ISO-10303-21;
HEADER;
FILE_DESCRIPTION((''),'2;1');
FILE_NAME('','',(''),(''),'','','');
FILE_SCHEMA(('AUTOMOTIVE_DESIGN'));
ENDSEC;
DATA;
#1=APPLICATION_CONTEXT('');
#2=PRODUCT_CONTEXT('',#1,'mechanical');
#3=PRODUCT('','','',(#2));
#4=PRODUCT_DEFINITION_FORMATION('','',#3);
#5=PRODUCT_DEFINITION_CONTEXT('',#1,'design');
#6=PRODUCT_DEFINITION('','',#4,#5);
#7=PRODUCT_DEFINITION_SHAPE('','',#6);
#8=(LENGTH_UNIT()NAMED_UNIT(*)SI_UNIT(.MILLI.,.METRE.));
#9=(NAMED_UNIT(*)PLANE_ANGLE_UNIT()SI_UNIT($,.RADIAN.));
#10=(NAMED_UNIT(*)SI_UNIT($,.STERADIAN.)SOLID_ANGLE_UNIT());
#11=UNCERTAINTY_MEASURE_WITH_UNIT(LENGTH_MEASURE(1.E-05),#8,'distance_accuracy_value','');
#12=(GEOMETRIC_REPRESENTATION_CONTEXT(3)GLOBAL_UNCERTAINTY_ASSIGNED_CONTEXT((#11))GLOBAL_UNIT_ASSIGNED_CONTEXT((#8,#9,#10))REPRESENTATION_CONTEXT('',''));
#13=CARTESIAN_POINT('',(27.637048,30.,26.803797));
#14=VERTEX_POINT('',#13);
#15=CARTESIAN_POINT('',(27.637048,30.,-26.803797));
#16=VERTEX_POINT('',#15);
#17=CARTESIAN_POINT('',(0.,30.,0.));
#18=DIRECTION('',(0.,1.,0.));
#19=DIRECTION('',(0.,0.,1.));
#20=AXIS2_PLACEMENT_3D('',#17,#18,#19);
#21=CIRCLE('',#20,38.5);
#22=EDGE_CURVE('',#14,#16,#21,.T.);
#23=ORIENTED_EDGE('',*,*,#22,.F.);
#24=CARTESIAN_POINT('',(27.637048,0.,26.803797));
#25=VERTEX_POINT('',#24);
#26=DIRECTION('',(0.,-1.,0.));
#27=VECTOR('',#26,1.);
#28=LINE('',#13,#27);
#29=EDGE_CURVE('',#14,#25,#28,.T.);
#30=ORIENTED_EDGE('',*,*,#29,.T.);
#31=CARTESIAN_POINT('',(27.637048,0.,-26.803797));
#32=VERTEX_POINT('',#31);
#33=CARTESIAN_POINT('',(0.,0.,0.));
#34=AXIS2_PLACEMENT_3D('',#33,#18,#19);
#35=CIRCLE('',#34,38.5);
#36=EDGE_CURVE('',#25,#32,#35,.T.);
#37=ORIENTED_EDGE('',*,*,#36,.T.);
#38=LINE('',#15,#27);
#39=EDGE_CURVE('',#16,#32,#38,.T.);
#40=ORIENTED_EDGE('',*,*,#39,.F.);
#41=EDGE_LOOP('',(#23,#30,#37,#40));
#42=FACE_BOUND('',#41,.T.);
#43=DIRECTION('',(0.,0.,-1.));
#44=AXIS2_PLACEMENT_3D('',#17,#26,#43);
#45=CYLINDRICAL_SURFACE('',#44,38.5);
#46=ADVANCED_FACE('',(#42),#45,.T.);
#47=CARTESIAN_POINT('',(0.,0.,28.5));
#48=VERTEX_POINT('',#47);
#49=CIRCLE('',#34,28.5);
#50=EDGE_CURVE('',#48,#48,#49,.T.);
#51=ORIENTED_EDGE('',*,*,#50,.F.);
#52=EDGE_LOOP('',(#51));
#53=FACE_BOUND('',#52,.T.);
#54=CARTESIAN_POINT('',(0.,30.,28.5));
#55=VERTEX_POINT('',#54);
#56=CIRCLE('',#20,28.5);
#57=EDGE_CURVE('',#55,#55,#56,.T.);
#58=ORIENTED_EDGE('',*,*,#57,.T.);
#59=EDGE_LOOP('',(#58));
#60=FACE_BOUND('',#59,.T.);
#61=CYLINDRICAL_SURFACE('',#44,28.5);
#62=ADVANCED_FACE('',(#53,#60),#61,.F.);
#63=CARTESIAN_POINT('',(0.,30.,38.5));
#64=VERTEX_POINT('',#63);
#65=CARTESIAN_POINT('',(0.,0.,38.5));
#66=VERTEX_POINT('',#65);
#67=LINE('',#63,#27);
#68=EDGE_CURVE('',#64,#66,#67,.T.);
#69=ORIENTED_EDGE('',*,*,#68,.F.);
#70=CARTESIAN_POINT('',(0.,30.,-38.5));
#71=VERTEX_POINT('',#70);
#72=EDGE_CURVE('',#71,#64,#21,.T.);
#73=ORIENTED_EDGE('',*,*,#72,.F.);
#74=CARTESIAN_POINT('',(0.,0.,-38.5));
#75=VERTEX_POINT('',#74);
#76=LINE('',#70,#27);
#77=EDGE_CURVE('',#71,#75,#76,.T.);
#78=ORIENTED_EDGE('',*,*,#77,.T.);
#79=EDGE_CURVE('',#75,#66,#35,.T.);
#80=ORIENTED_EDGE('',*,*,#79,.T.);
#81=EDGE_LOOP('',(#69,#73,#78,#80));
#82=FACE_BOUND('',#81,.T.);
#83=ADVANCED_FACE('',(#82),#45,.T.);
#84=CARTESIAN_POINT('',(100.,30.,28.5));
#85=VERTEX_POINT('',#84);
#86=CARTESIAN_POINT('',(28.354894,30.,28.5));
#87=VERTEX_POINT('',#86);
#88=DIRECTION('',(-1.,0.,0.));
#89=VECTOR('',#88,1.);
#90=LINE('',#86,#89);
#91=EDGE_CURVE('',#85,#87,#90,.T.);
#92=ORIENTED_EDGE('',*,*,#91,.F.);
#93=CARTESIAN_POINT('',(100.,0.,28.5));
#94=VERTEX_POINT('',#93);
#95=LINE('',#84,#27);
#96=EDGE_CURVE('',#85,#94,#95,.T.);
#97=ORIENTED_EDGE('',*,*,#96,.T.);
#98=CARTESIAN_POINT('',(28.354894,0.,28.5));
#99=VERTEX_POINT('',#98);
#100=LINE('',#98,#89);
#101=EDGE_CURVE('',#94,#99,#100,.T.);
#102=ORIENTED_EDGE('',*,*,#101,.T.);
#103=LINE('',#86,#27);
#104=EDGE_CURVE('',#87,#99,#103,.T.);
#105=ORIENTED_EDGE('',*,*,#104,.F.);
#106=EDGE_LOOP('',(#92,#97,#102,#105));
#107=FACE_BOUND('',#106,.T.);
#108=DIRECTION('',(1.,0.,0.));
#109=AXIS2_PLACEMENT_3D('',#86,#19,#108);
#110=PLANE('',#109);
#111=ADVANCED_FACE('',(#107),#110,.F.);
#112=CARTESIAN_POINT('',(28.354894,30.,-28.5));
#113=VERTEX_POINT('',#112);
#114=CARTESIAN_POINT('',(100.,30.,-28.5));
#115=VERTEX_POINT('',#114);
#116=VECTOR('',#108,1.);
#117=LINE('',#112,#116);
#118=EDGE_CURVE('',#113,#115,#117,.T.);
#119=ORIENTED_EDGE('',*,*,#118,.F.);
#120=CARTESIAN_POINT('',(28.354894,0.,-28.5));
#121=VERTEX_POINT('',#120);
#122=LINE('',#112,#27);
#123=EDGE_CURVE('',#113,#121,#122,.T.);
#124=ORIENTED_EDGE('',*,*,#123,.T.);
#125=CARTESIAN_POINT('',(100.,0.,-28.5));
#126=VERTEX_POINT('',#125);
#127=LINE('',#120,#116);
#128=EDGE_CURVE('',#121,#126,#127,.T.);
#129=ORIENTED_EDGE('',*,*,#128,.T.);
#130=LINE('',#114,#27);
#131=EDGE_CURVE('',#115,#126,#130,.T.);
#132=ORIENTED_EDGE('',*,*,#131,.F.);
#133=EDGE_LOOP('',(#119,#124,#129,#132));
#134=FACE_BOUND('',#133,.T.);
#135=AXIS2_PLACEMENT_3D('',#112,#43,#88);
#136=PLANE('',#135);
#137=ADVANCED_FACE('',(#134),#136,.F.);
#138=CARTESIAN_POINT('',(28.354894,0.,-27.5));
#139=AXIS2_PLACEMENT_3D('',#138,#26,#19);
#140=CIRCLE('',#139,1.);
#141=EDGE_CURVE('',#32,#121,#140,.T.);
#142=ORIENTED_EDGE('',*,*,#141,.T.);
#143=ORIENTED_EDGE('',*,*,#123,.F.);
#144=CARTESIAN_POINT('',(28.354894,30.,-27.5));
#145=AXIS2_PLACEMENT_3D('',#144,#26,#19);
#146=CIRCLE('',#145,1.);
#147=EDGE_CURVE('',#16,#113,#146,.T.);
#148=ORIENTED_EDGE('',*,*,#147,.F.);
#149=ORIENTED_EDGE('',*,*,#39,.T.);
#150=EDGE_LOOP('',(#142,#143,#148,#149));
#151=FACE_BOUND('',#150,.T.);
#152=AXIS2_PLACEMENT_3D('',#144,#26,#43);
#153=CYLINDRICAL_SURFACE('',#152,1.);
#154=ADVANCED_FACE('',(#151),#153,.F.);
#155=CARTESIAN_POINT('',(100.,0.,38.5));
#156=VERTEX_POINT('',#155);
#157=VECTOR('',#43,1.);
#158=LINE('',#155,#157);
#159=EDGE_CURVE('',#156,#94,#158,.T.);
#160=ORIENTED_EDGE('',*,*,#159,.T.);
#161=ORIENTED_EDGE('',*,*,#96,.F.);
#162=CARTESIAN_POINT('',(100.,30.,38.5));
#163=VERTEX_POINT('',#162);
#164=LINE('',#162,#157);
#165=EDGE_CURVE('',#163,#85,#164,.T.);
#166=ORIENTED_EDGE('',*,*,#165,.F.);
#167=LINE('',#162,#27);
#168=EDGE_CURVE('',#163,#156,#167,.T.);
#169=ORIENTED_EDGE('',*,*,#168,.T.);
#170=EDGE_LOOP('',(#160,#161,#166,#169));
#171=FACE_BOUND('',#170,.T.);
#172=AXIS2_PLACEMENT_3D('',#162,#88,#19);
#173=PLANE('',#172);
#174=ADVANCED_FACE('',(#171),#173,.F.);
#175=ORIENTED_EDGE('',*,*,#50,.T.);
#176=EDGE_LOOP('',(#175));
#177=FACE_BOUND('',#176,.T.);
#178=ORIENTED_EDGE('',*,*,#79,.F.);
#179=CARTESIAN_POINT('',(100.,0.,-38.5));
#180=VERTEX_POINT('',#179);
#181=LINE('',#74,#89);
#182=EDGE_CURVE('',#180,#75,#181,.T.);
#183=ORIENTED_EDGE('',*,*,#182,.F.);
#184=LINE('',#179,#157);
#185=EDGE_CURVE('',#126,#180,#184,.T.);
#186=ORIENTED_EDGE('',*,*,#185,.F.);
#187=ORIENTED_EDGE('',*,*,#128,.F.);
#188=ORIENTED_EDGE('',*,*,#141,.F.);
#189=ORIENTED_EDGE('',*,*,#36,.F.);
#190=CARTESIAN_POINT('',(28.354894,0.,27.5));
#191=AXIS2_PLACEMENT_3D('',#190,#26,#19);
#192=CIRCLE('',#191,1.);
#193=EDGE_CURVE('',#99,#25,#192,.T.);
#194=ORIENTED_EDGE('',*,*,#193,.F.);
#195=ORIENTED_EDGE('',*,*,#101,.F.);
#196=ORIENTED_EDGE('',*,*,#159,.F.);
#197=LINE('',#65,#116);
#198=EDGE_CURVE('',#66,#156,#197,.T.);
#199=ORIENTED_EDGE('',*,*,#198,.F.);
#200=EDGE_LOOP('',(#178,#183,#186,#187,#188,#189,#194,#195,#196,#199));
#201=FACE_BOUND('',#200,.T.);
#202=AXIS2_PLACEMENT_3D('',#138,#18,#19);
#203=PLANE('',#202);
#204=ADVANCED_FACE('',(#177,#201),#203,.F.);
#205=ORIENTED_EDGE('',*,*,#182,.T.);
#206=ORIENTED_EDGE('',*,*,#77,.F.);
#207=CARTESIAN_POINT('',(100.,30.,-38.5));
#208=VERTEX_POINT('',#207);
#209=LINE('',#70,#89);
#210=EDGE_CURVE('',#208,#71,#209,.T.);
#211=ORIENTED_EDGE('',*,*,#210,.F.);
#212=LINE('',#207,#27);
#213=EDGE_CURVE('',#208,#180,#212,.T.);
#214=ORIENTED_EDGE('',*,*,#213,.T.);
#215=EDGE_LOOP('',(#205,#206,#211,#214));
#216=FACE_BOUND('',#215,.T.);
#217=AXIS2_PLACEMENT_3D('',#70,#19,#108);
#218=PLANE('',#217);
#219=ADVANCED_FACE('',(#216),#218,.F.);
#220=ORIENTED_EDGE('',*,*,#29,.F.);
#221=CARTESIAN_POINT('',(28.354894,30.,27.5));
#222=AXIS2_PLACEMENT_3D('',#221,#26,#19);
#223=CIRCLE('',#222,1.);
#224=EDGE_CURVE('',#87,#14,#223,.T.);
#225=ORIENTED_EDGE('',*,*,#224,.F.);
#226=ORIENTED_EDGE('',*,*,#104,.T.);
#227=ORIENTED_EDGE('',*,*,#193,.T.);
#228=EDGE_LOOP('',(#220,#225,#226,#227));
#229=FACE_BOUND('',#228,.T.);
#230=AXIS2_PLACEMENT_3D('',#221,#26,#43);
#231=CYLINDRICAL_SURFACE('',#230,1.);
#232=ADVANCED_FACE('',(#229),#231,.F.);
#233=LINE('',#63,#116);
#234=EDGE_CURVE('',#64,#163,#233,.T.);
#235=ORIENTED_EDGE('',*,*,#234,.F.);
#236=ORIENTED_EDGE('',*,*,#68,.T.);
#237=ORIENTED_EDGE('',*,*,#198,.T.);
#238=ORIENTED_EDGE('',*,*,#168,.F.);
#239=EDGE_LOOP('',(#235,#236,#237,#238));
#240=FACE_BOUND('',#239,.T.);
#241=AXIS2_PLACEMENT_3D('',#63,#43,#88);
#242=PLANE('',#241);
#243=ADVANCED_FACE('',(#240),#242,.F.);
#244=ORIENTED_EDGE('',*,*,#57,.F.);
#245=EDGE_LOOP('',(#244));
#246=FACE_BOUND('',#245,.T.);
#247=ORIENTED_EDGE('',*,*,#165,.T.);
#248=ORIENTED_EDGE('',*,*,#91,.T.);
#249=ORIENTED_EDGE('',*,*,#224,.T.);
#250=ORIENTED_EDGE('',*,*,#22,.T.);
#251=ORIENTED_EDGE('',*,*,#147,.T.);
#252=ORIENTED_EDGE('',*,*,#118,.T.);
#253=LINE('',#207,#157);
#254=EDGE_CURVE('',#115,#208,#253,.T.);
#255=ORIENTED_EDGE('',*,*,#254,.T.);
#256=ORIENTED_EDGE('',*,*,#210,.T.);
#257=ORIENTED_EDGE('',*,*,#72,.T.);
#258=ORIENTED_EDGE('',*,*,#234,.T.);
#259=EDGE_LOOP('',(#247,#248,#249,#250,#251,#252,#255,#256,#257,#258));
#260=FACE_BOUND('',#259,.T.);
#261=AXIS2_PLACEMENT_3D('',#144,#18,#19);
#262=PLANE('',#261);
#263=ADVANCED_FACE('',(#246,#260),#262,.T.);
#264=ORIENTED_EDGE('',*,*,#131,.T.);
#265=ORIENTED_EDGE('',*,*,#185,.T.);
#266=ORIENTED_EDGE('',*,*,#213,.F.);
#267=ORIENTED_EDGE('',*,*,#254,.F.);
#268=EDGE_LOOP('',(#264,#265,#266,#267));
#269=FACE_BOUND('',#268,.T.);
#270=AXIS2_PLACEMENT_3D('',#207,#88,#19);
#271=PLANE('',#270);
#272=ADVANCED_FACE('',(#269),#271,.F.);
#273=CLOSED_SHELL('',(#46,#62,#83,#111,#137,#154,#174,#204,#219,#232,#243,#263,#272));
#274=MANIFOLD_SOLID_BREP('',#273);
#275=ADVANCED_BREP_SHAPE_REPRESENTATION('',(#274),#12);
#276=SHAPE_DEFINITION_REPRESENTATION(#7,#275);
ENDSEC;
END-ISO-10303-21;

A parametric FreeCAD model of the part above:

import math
import FreeCAD as App
import Part
import Sketcher
from FreeCAD import Vector
Q = App.Units.Quantity

doc = App.newDocument("Part")
body = doc.addObject("PartDesign::Body", "Body")

# Sketch on XZ plane
sketch1 = body.newObject("Sketcher::SketchObject", "Sketch")
sketch1.AttachmentSupport = (doc.getObject("XZ_Plane"), [""])
sketch1.MapMode = "FlatFace"
sketch1.addGeometry([
    Part.LineSegment(Vector(100, 28.5, 0), Vector(28.4, 28.5, 0)),  # 0
    Part.ArcOfCircle(Part.Circle(Vector(28.4, 27.5, 0), Vector(0, 0, 1), 1), math.radians(90), math.radians(224)),  # 1
    Part.ArcOfCircle(Part.Circle(Vector(0, 0, 0), Vector(0, 0, 1), 38.5), math.radians(-44), math.radians(44)),  # 2
    Part.ArcOfCircle(Part.Circle(Vector(28.4, -27.5, 0), Vector(0, 0, 1), 1), math.radians(136), math.radians(270)),  # 3
    Part.LineSegment(Vector(28.4, -28.5, 0), Vector(100, -28.5, 0)),  # 4
    Part.LineSegment(Vector(100, -28.5, 0), Vector(100, -38.5, 0)),  # 5
    Part.LineSegment(Vector(100, -38.5, 0), Vector(0, -38.5, 0)),  # 6
    Part.ArcOfCircle(Part.Circle(Vector(0, 0, 0), Vector(0, 0, 1), 38.5), math.radians(90), math.radians(270)),  # 7
    Part.LineSegment(Vector(0, 38.5, 0), Vector(100, 38.5, 0)),  # 8
    Part.LineSegment(Vector(100, 38.5, 0), Vector(100, 28.5, 0)),  # 9
    Part.Circle(Vector(0, 0, 0), Vector(0, 0, 1), 28.5),  # 10
], False)
sketch1.addConstraint([
    Sketcher.Constraint("Tangent", 0, 2, 1, 1),
    Sketcher.Constraint("Tangent", 1, 2, 2, 2),
    Sketcher.Constraint("Tangent", 2, 1, 3, 1),
    Sketcher.Constraint("Tangent", 3, 2, 4, 1),
    Sketcher.Constraint("Coincident", 4, 2, 5, 1),
    Sketcher.Constraint("Coincident", 5, 2, 6, 1),
    Sketcher.Constraint("Tangent", 6, 2, 7, 2),
    Sketcher.Constraint("Tangent", 7, 1, 8, 1),
    Sketcher.Constraint("Coincident", 8, 2, 9, 1),
    Sketcher.Constraint("Coincident", 9, 2, 0, 1),
    Sketcher.Constraint("Horizontal", 0),
    Sketcher.Constraint("Horizontal", 4),
    Sketcher.Constraint("Vertical", 5),
    Sketcher.Constraint("Horizontal", 6),
    Sketcher.Constraint("Horizontal", 8),
    Sketcher.Constraint("Vertical", 9),
    Sketcher.Constraint("Coincident", 2, 3, -1, 1),
    Sketcher.Constraint("Coincident", 7, 3, -1, 1),
    Sketcher.Constraint("Coincident", 10, 3, -1, 1),
    Sketcher.Constraint("Equal", 1, 3),
    Sketcher.Constraint("Equal", 2, 7),
    Sketcher.Constraint("Symmetric", 4, 2, 9, 2, -1),
    Sketcher.Constraint("Diameter", 10, Q("57 mm")),
    Sketcher.Constraint("Radius", 1, Q("1 mm")),
    Sketcher.Constraint("Radius", 2, Q("38.5 mm")),
    Sketcher.Constraint("DistanceX", 6, 2, 6, 1, Q("100 mm")),
    Sketcher.Constraint("DistanceY", 5, 2, 5, 1, Q("10 mm")),
])
pad1 = body.newObject("PartDesign::Pad", "Pad")
pad1.Profile = sketch1
pad1.Length = 30
pad1.Reversed = True

doc.recompute()
